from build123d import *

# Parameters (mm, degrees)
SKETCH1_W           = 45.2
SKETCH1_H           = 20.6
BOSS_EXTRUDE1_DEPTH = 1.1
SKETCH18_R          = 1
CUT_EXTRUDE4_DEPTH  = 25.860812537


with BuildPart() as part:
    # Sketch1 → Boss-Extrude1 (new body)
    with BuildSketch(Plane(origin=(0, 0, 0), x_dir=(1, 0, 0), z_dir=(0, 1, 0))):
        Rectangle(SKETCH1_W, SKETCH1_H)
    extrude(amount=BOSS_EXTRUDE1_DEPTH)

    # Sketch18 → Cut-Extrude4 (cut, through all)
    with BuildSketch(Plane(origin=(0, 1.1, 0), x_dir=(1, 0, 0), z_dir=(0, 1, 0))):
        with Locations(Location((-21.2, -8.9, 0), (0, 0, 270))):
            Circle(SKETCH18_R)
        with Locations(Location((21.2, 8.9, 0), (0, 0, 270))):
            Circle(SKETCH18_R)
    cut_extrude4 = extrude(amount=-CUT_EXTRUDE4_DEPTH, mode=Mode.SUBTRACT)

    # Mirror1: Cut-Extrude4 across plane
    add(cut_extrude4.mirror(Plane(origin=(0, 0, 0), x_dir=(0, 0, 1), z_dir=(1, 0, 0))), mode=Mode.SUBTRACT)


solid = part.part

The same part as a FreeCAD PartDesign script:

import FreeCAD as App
import Part
import Sketcher
from FreeCAD import Vector

doc = App.newDocument("Part")
body = doc.addObject("PartDesign::Body", "Body")

sketch1 = body.newObject("Sketcher::SketchObject", "Sketch")
sketch1.AttachmentSupport = (doc.getObject("XZ_Plane"), [""])
sketch1.MapMode = "FlatFace"
sketch1.addGeometry([
    Part.LineSegment(Vector(-23, -10, 0), Vector(-23, 10, 0)),
    Part.LineSegment(Vector(-23, 10, 0), Vector(23, 10, 0)),
    Part.LineSegment(Vector(23, 10, 0), Vector(23, -10, 0)),
    Part.LineSegment(Vector(23, -10, 0), Vector(-23, -10, 0)),
], False)
sketch1.addConstraint([
    Sketcher.Constraint("Coincident", 0, 2, 1, 1),
    Sketcher.Constraint("Coincident", 1, 2, 2, 1),
    Sketcher.Constraint("Coincident", 2, 2, 3, 1),
    Sketcher.Constraint("Coincident", 3, 2, 0, 1),
    Sketcher.Constraint("Vertical", 0),
    Sketcher.Constraint("Horizontal", 1),
    Sketcher.Constraint("Vertical", 2),
    Sketcher.Constraint("Horizontal", 3),
    Sketcher.Constraint("Symmetric", 0, 2, 2, 2, -1, 1),
    Sketcher.Constraint("DistanceX", 1, 1, 1, 2, 45.2),
    Sketcher.Constraint("DistanceY", 0, 1, 0, 2, 20.6),
])
pad1 = body.newObject("PartDesign::Pad", "Pad")
pad1.Profile = sketch1
pad1.Length = 1.1
pad1.Reversed = True

sketch2 = body.newObject("Sketcher::SketchObject", "Sketch001")
sketch2.AttachmentSupport = (doc.getObject("XZ_Plane"), [""])
sketch2.MapMode = "FlatFace"
sketch2.AttachmentOffset = App.Placement(Vector(0, 0, -1.1), App.Rotation())
sketch2.addGeometry([
    Part.Circle(Vector(-21.2, 8.9, 0), Vector(0, 0, 1), 1),
    Part.Circle(Vector(21.2, -8.9, 0), Vector(0, 0, 1), 1),
], False)
sketch2.addConstraint([
    Sketcher.Constraint("Equal", 0, 1),
    Sketcher.Constraint("Symmetric", 0, 3, 1, 3, -1, 1),
    Sketcher.Constraint("Diameter", 0, 2.0),
    Sketcher.Constraint("DistanceX", 0, 3, -1, 1, 21.2),
    Sketcher.Constraint("DistanceY", -1, 1, 0, 3, 8.9),
])
pocket1 = body.newObject("PartDesign::Pocket", "Pocket")
pocket1.Profile = sketch2
pocket1.Type = "ThroughAll"
pocket1.Reversed = True
doc.recompute()

mirrored = body.newObject("PartDesign::Mirrored", "Mirrored")
mirrored.Originals = [pocket1]
mirrored.MirrorPlane = (doc.getObject("YZ_Plane"), [""])
body.Tip = mirrored

doc.recompute()
